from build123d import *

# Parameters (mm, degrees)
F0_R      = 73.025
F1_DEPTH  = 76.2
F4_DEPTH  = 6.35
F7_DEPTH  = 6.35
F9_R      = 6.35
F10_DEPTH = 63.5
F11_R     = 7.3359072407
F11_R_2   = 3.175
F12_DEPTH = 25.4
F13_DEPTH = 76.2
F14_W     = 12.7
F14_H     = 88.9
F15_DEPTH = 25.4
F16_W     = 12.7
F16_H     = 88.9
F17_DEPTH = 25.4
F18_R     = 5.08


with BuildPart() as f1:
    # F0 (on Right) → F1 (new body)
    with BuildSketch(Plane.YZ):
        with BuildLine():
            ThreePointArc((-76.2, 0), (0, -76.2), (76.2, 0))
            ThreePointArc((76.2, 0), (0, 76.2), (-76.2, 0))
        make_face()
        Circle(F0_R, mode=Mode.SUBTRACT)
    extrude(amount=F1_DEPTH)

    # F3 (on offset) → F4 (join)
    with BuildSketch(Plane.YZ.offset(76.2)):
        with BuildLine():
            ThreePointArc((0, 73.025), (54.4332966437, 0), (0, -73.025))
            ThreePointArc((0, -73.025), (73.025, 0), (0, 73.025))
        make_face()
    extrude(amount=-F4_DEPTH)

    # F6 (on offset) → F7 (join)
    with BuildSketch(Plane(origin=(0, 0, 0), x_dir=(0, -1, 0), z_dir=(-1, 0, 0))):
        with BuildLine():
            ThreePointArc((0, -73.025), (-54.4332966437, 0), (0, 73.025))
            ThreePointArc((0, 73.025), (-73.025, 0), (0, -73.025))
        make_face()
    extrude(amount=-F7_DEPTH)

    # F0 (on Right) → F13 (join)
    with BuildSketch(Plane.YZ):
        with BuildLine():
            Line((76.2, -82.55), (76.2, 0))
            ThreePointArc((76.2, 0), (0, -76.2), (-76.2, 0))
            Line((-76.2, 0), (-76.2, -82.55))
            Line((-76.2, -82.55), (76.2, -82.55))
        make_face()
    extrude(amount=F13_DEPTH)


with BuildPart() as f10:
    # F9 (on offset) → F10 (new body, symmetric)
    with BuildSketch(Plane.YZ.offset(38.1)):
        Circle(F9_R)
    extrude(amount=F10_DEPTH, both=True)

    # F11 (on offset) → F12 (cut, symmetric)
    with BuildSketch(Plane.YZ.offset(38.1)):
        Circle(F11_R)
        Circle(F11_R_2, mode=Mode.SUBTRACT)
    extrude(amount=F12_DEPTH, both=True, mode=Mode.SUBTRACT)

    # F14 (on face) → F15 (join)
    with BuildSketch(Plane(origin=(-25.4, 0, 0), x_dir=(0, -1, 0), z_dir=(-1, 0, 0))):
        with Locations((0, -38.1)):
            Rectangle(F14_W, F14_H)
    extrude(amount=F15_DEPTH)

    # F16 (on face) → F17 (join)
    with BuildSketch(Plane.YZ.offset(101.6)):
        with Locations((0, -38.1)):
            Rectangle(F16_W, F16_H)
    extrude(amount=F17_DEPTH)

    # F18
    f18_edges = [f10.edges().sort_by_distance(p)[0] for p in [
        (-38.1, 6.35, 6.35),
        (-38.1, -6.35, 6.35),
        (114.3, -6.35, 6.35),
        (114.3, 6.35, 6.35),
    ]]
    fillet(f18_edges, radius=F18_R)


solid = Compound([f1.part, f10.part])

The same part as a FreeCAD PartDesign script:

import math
import FreeCAD as App
import Part
import Sketcher

V = App.Vector
Q = App.Units.Quantity


def edges_at(feature, points):
    """Names of the edges that pass closest to the given points."""
    edges = feature.Shape.Edges
    near = lambda p: min(range(len(edges)), key=lambda i: edges[i].distToShape(Part.Vertex(*p))[0])
    return sorted({f"Edge{near(p) + 1}" for p in points})


def add_polygon(sketch, points):
    """Adds a closed chain of lines whose ends are joined by coincident constraints."""
    first, n = sketch.GeometryCount, len(points)
    for a, b in zip(points, points[1:] + points[:1]):
        sketch.addGeometry(Part.LineSegment(App.Vector(*a, 0), App.Vector(*b, 0)), False)
    for i in range(n):
        sketch.addConstraint(Sketcher.Constraint("Coincident", first + i, 2, first + (i + 1) % n, 1))

doc = App.newDocument("Part")
params = doc.addObject("Spreadsheet::Sheet", "Params")
for row, (alias, value) in enumerate([
    ("sketch1_diameter", "6 in"),
    ("sketch1_diameter2", "5.75 in"),
    ("pad1_length", "3 in"),
    ("sketch2_radius", "3 in"),
    ("sketch2_radius2", "2.875 in"),
    ("pad2_length", "0.25 in"),
    ("sketch3_radius", "3 in"),
    ("sketch3_radius2", "2.875 in"),
    ("pad3_length", "0.25 in"),
    ("sketch4_radius", "3 in"),
    ("sketch4_height", "3.25 in"),
    ("pad4_length", "3 in"),
    ("sketch5_diameter", "0.5 in"),
    ("pad5_length", "5 in"),
    ("sketch6_diameter", "0.25 in"),
    ("pocket1_length", "2 in"),
    ("sketch7_width", "0.5 in"),
    ("sketch7_height", "3.5 in"),
    ("pad6_length", "1 in"),
    ("sketch8_width", "0.5 in"),
    ("sketch8_height", "3.5 in"),
    ("pad7_length", "1 in"),
    ("fillet_radius", "0.2 in"),
], start=1):
    params.set(f"A{row}", alias)
    params.set(f"B{row}", "=" + value)
    params.setAlias(f"B{row}", alias)

body = doc.addObject("PartDesign::Body", "Body")

# Sketch on YZ plane
sketch1 = body.newObject("Sketcher::SketchObject", "Sketch")
sketch1.AttachmentSupport = (doc.getObject("YZ_Plane"), [""])
sketch1.MapMode = "FlatFace"
sketch1.addGeometry([
    Part.Circle(V(0, 0, 0), V(0, 0, 1), 76.2),
    Part.Circle(V(0, 0, 0), V(0, 0, 1), 73.025),
], False)
sketch1.addConstraint([
    Sketcher.Constraint("Coincident", 0, 3, -1, 1),
    Sketcher.Constraint("Coincident", 1, 3, -1, 1),
    Sketcher.Constraint("Diameter", 0, Q("6 in")),
    Sketcher.Constraint("Diameter", 1, Q("5.75 in")),
])
sketch1.setExpression("Constraints[2]", "Params.sketch1_diameter")
sketch1.setExpression("Constraints[3]", "Params.sketch1_diameter2")
pad1 = body.newObject("PartDesign::Pad", "Pad")
pad1.Profile = sketch1
pad1.setExpression("Length", "Params.pad1_length")

# Sketch on YZ plane
sketch2 = body.newObject("Sketcher::SketchObject", "Sketch001")
sketch2.AttachmentSupport = (doc.getObject("YZ_Plane"), [""])
sketch2.MapMode = "FlatFace"
sketch2.AttachmentOffset = App.Placement(V(0, 0, 3 * 25.4), App.Rotation())
sketch2.addGeometry([
    Part.ArcOfCircle(Part.Circle(V(-21.766703, 0, 0), V(0, 0, 1), 76.2), math.radians(-73.402158), math.radians(73.402158)),
    Part.ArcOfCircle(Part.Circle(V(0, 0, 0), V(0, 0, 1), 73.025), math.radians(-90), math.radians(90)),
], False)
sketch2.addConstraint([
    Sketcher.Constraint("Coincident", 0, 1, 1, 1),
    Sketcher.Constraint("Coincident", 1, 2, 0, 2),
    Sketcher.Constraint("Coincident", 1, 3, -1, 1),
    Sketcher.Constraint("PointOnObject", 0, 3, -1),
    Sketcher.Constraint("PointOnObject", 0, 1, -2),
    Sketcher.Constraint("Radius", 0, Q("3 in")),
    Sketcher.Constraint("Radius", 1, Q("2.875 in")),
])
sketch2.setExpression("Constraints[5]", "Params.sketch2_radius")
sketch2.setExpression("Constraints[6]", "Params.sketch2_radius2")
pad2 = body.newObject("PartDesign::Pad", "Pad001")
pad2.Profile = sketch2
pad2.setExpression("Length", "Params.pad2_length")
pad2.Reversed = True

# Sketch on YZ plane
sketch3 = body.newObject("Sketcher::SketchObject", "Sketch002")
sketch3.AttachmentSupport = (doc.getObject("YZ_Plane"), [""])
sketch3.MapMode = "FlatFace"
sketch3.addGeometry([
    Part.ArcOfCircle(Part.Circle(V(-21.766703, 0, 0), V(0, 0, 1), 76.2), math.radians(-73.402158), math.radians(73.402158)),
    Part.ArcOfCircle(Part.Circle(V(0, 0, 0), V(0, 0, 1), 73.025), math.radians(-90), math.radians(90)),
], False)
sketch3.addConstraint([
    Sketcher.Constraint("Coincident", 0, 1, 1, 1),
    Sketcher.Constraint("Coincident", 1, 2, 0, 2),
    Sketcher.Constraint("Coincident", 1, 3, -1, 1),
    Sketcher.Constraint("PointOnObject", 0, 3, -1),
    Sketcher.Constraint("PointOnObject", 0, 1, -2),
    Sketcher.Constraint("Radius", 0, Q("3 in")),
    Sketcher.Constraint("Radius", 1, Q("2.875 in")),
])
sketch3.setExpression("Constraints[5]", "Params.sketch3_radius")
sketch3.setExpression("Constraints[6]", "Params.sketch3_radius2")
pad3 = body.newObject("PartDesign::Pad", "Pad002")
pad3.Profile = sketch3
pad3.setExpression("Length", "Params.pad3_length")

# Sketch on YZ plane
sketch4 = body.newObject("Sketcher::SketchObject", "Sketch003")
sketch4.AttachmentSupport = (doc.getObject("YZ_Plane"), [""])
sketch4.MapMode = "FlatFace"
sketch4.addGeometry([
    Part.LineSegment(V(76.2, -82.55, 0), V(76.2, 0, 0)),
    Part.ArcOfCircle(Part.Circle(V(0, 0, 0), V(0, 0, 1), 76.2), math.radians(180), math.radians(360)),
    Part.LineSegment(V(-76.2, 0, 0), V(-76.2, -82.55, 0)),
    Part.LineSegment(V(-76.2, -82.55, 0), V(76.2, -82.55, 0)),
], False)
sketch4.addConstraint([
    Sketcher.Constraint("Tangent", 0, 2, 1, 2),
    Sketcher.Constraint("Tangent", 1, 1, 2, 1),
    Sketcher.Constraint("Coincident", 2, 2, 3, 1),
    Sketcher.Constraint("Coincident", 3, 2, 0, 1),
    Sketcher.Constraint("Vertical", 0),
    Sketcher.Constraint("Vertical", 2),
    Sketcher.Constraint("Horizontal", 3),
    Sketcher.Constraint("Coincident", 1, 3, -1, 1),
    Sketcher.Constraint("Radius", 1, Q("3 in")),
    Sketcher.Constraint("DistanceY", 0, 1, 0, 2, Q("3.25 in")),
])
sketch4.setExpression("Constraints[8]", "Params.sketch4_radius")
sketch4.setExpression("Constraints[9]", "Params.sketch4_height")
pad4 = body.newObject("PartDesign::Pad", "Pad003")
pad4.Profile = sketch4
pad4.setExpression("Length", "Params.pad4_length")
body2 = doc.addObject("PartDesign::Body", "Body001")

# Sketch on YZ plane
sketch5 = body2.newObject("Sketcher::SketchObject", "Sketch004")
sketch5.AttachmentSupport = (doc.getObject("YZ_Plane001"), [""])
sketch5.MapMode = "FlatFace"
sketch5.AttachmentOffset = App.Placement(V(0, 0, 1.5 * 25.4), App.Rotation())
sketch5.addGeometry(Part.Circle(V(0, 0, 0), V(0, 0, 1), 6.35), False)
sketch5.addConstraint([
    Sketcher.Constraint("Coincident", 0, 3, -1, 1),
    Sketcher.Constraint("Diameter", 0, Q("0.5 in")),
])
sketch5.setExpression("Constraints[1]", "Params.sketch5_diameter")
pad5 = body2.newObject("PartDesign::Pad", "Pad004")
pad5.Profile = sketch5
pad5.setExpression("Length", "Params.pad5_length")
pad5.Midplane = True

# Sketch on YZ plane
sketch6 = body2.newObject("Sketcher::SketchObject", "Sketch005")
sketch6.AttachmentSupport = (doc.getObject("YZ_Plane001"), [""])
sketch6.MapMode = "FlatFace"
sketch6.AttachmentOffset = App.Placement(V(0, 0, 1.5 * 25.4), App.Rotation())
sketch6.addGeometry([
    Part.Circle(V(0, 0, 0), V(0, 0, 1), 7.335907),
    Part.Circle(V(0, 0, 0), V(0, 0, 1), 3.175),
], False)
sketch6.addConstraint([
    Sketcher.Constraint("Coincident", 0, 3, -1, 1),
    Sketcher.Constraint("Coincident", 1, 3, -1, 1),
    Sketcher.Constraint("Diameter", 1, Q("0.25 in")),
    Sketcher.Constraint("Diameter", 0, Q("14.671814 mm")),
])
sketch6.setExpression("Constraints[2]", "Params.sketch6_diameter")
pocket1 = body2.newObject("PartDesign::Pocket", "Pocket")
pocket1.Profile = sketch6
pocket1.setExpression("Length", "Params.pocket1_length")
pocket1.Midplane = True

# Sketch on YZ plane
sketch7 = body2.newObject("Sketcher::SketchObject", "Sketch006")
sketch7.AttachmentSupport = (doc.getObject("YZ_Plane001"), [""])
sketch7.MapMode = "FlatFace"
sketch7.AttachmentOffset = App.Placement(V(0, 0, -1 * 25.4), App.Rotation())
add_polygon(sketch7, [(6.35, 6.35), (6.35, -82.55), (-6.35, -82.55), (-6.35, 6.35)])  # lines 0-3
sketch7.addConstraint([
    Sketcher.Constraint("Vertical", 0),
    Sketcher.Constraint("Horizontal", 1),
    Sketcher.Constraint("Vertical", 2),
    Sketcher.Constraint("Horizontal", 3),
    Sketcher.Constraint("DistanceX", 1, 2, 1, 1, Q("0.5 in")),
    Sketcher.Constraint("DistanceY", 0, 2, 0, 1, Q("3.5 in")),
    Sketcher.Constraint("DistanceX", -1, 1, 0, 2, Q("0.25 in")),
    Sketcher.Constraint("DistanceY", 0, 2, -1, 1, Q("3.25 in")),
])
sketch7.setExpression("Constraints[8]", "Params.sketch7_width")
sketch7.setExpression("Constraints[9]", "Params.sketch7_height")
pad6 = body2.newObject("PartDesign::Pad", "Pad005")
pad6.Profile = sketch7
pad6.setExpression("Length", "Params.pad6_length")
pad6.Reversed = True

# Sketch on YZ plane
sketch8 = body2.newObject("Sketcher::SketchObject", "Sketch007")
sketch8.AttachmentSupport = (doc.getObject("YZ_Plane001"), [""])
sketch8.MapMode = "FlatFace"
sketch8.AttachmentOffset = App.Placement(V(0, 0, 4 * 25.4), App.Rotation())
add_polygon(sketch8, [(-6.35, 6.35), (-6.35, -82.55), (6.35, -82.55), (6.35, 6.35)])  # lines 0-3
sketch8.addConstraint([
    Sketcher.Constraint("Vertical", 0),
    Sketcher.Constraint("Horizontal", 1),
    Sketcher.Constraint("Vertical", 2),
    Sketcher.Constraint("Horizontal", 3),
    Sketcher.Constraint("DistanceX", 1, 1, 1, 2, Q("0.5 in")),
    Sketcher.Constraint("DistanceY", 0, 2, 0, 1, Q("3.5 in")),
    Sketcher.Constraint("DistanceX", 0, 2, -1, 1, Q("0.25 in")),
    Sketcher.Constraint("DistanceY", 0, 2, -1, 1, Q("3.25 in")),
])
sketch8.setExpression("Constraints[8]", "Params.sketch8_width")
sketch8.setExpression("Constraints[9]", "Params.sketch8_height")
pad7 = body2.newObject("PartDesign::Pad", "Pad006")
pad7.Profile = sketch8
pad7.setExpression("Length", "Params.pad7_length")
doc.recompute()

fillet = body2.newObject("PartDesign::Fillet", "Fillet")
fillet.Base = (pad7, edges_at(pad7, [
    (-38.1, 6.35, 6.35),
    (-38.1, -6.35, 6.35),
    (114.3, -6.35, 6.35),
    (114.3, 6.35, 6.35),
]))
fillet.setExpression("Radius", "Params.fillet_radius")

doc.recompute()
